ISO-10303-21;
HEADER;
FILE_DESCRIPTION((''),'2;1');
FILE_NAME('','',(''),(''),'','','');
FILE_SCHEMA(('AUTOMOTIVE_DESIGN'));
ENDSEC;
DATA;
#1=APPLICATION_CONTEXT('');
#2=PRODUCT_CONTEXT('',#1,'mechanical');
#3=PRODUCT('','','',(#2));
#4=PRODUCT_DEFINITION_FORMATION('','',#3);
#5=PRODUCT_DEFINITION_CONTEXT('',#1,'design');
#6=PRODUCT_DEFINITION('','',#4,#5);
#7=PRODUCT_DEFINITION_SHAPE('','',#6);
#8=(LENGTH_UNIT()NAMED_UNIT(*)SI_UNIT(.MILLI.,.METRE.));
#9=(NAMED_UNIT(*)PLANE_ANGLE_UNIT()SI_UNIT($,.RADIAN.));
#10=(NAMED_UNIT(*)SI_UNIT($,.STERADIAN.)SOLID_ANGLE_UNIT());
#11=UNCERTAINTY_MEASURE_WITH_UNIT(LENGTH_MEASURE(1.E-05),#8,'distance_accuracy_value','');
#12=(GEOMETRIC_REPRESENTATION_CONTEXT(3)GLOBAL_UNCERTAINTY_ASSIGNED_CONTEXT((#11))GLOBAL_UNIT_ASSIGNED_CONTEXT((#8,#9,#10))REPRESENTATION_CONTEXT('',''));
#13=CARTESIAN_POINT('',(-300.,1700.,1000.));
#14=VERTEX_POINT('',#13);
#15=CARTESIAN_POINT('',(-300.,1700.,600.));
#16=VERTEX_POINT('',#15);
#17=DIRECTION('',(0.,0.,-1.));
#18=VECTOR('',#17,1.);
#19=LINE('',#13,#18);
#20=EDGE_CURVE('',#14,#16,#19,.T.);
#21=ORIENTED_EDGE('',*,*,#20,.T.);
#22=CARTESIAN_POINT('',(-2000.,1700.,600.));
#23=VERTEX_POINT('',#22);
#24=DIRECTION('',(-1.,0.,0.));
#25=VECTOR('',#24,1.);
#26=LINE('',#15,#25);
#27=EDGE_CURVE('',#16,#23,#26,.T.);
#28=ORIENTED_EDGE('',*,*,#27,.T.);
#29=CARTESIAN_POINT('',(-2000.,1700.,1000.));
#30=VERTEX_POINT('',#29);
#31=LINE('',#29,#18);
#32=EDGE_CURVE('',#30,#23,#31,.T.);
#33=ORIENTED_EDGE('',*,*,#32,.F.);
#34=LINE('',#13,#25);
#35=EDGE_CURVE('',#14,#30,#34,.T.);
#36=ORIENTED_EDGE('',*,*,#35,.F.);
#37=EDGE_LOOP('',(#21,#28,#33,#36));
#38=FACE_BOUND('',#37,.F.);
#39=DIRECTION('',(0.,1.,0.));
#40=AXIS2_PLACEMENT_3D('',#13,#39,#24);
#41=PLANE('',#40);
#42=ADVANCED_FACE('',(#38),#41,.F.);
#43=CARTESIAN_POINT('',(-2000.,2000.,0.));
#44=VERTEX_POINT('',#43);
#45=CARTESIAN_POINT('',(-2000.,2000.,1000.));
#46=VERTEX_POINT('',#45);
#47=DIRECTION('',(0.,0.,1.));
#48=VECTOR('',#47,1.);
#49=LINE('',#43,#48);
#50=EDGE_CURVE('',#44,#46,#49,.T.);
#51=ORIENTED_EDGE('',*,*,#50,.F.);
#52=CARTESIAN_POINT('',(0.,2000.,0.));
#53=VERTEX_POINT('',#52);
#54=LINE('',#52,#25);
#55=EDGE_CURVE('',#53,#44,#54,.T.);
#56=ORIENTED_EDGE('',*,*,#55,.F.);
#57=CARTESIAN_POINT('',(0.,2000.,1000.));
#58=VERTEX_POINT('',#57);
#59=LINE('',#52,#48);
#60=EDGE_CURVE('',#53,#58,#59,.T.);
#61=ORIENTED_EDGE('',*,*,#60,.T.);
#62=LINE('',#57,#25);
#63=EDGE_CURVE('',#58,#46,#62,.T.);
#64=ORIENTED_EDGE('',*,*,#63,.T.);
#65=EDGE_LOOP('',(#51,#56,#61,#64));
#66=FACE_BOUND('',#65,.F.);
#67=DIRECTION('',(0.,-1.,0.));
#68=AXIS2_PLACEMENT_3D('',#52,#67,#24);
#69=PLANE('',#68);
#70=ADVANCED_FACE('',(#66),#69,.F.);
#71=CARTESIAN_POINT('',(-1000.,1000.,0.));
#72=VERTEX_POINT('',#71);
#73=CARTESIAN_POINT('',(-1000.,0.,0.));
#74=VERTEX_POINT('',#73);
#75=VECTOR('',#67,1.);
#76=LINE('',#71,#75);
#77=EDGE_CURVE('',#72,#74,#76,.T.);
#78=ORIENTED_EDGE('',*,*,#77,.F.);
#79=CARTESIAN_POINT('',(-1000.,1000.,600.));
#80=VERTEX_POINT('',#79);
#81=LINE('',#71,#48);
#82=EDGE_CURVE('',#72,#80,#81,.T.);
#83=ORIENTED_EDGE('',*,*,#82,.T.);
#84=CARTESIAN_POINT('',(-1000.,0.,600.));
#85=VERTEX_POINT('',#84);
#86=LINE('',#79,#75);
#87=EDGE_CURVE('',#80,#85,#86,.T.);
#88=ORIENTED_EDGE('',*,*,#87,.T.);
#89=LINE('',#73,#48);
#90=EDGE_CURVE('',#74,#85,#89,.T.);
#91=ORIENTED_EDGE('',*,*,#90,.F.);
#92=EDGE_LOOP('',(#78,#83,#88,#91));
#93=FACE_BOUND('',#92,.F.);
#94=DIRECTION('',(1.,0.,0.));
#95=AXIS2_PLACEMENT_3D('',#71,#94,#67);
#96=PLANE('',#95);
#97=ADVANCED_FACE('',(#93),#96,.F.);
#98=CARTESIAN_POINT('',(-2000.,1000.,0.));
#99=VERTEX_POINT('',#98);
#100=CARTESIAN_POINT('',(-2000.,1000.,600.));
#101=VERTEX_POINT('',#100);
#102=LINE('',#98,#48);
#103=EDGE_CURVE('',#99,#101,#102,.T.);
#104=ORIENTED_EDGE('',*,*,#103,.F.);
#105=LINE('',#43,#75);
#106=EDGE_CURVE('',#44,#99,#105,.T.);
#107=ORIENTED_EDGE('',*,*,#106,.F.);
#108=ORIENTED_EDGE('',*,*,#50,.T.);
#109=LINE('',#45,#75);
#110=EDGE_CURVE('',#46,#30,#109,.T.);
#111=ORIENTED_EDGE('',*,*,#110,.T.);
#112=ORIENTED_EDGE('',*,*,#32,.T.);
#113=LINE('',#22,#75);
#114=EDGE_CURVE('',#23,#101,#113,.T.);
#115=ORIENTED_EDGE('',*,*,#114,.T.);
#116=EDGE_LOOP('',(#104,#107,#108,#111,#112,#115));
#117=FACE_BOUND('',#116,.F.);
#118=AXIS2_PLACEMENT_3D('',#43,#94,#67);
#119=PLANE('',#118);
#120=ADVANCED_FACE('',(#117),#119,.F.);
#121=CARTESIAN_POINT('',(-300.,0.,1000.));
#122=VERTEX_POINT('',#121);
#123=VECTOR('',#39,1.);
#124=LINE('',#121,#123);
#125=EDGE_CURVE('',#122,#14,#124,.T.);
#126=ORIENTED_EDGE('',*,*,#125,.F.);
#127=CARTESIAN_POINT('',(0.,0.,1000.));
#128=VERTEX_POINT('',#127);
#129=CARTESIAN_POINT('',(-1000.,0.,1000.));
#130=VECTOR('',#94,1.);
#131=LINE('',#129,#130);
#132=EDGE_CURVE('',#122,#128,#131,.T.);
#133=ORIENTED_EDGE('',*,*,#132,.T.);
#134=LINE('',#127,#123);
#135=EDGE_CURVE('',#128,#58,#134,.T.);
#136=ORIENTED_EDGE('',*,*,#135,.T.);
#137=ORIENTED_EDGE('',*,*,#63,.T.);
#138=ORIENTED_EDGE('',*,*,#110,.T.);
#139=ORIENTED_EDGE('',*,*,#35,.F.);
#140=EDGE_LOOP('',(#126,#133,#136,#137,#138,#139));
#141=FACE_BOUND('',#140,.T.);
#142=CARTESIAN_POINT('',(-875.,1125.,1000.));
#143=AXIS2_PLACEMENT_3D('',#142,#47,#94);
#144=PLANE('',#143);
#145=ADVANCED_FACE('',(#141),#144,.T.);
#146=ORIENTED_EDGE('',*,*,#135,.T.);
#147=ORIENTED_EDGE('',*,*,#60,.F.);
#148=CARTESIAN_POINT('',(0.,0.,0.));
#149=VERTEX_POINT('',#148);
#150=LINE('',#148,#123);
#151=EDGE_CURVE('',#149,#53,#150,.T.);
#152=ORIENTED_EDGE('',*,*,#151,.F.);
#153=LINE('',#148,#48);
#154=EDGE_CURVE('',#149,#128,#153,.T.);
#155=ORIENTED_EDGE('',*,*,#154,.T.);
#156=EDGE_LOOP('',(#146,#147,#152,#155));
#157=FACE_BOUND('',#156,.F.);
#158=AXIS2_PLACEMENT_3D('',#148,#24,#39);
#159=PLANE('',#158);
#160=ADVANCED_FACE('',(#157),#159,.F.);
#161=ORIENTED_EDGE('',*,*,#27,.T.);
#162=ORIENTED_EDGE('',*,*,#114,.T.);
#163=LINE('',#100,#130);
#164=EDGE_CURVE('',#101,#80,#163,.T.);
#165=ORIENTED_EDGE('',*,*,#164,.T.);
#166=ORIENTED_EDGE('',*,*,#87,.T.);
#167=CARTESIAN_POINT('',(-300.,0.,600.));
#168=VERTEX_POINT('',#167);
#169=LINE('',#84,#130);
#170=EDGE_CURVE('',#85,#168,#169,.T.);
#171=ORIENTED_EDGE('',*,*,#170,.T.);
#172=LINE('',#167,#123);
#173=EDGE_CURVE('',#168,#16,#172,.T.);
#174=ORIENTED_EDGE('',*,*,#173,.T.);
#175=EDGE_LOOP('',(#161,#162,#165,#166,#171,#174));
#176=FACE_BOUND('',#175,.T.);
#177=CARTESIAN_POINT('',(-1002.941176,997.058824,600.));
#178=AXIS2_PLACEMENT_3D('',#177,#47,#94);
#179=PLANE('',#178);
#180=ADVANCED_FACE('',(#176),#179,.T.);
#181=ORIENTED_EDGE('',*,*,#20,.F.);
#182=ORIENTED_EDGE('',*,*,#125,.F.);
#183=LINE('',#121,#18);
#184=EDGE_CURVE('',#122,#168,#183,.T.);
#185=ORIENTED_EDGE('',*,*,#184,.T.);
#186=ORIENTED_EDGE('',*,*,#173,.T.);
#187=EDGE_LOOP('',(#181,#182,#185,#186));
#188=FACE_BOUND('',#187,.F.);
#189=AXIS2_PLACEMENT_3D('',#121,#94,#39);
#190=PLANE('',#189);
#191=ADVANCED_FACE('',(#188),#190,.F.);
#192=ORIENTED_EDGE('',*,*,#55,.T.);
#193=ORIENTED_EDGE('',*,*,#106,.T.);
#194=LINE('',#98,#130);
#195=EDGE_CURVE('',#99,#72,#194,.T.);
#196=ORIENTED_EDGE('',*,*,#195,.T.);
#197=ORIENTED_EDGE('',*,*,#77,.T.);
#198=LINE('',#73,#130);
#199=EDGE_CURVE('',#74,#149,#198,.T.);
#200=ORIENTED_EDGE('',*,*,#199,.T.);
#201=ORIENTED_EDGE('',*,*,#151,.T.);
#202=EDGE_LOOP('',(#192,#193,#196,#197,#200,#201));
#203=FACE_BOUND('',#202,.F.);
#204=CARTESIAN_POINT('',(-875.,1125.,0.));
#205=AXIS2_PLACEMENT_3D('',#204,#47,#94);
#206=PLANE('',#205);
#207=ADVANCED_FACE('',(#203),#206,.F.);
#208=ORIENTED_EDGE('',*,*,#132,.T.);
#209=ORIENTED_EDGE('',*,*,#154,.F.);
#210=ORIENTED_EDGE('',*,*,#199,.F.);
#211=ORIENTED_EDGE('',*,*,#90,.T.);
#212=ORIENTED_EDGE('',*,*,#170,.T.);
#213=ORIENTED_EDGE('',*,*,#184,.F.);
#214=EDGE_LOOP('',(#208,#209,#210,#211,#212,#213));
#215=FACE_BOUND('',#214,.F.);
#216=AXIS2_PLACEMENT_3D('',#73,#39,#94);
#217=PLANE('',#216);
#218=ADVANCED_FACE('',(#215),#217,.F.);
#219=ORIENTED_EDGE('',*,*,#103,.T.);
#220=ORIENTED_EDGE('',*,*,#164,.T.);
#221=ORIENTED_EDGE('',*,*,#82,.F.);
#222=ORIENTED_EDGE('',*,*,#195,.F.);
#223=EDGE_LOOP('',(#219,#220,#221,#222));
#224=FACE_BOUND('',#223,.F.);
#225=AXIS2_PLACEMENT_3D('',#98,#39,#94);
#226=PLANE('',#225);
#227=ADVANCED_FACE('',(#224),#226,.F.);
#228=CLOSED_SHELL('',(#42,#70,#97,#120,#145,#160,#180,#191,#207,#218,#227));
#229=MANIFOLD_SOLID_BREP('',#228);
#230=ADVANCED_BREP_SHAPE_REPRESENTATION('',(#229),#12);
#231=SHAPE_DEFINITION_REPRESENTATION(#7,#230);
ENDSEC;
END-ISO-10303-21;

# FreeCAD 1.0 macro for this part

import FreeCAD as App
import Part
import Sketcher

V = App.Vector
Q = App.Units.Quantity

doc = App.newDocument("Part")
body = doc.addObject("PartDesign::Body", "Body")

# Sketch on XY plane
sketch1 = doc.addObject("Sketcher::SketchObject", "Sketch")
body.addObject(sketch1)
sketch1.AttachmentSupport = (doc.XY_Plane, [""])
sketch1.MapMode = "FlatFace"
sketch1.addGeometry([
    Part.LineSegment(V(-1000, 0, 0), V(0, 0, 0)),  # 0
    Part.LineSegment(V(0, 0, 0), V(0, 2000, 0)),  # 1
    Part.LineSegment(V(0, 2000, 0), V(-2000, 2000, 0)),  # 2
    Part.LineSegment(V(-2000, 2000, 0), V(-2000, 1000, 0)),  # 3
    Part.LineSegment(V(-2000, 1000, 0), V(-1000, 1000, 0)),  # 4
    Part.LineSegment(V(-1000, 1000, 0), V(-1000, 0, 0)),  # 5
], False)
sketch1.addConstraint([
    Sketcher.Constraint("Coincident", 0, 2, 1, 1),
    Sketcher.Constraint("Coincident", 1, 2, 2, 1),
    Sketcher.Constraint("Coincident", 2, 2, 3, 1),
    Sketcher.Constraint("Coincident", 3, 2, 4, 1),
    Sketcher.Constraint("Coincident", 4, 2, 5, 1),
    Sketcher.Constraint("Coincident", 5, 2, 0, 1),
    Sketcher.Constraint("Horizontal", 0),
    Sketcher.Constraint("Vertical", 1),
    Sketcher.Constraint("Horizontal", 2),
    Sketcher.Constraint("Vertical", 3),
    Sketcher.Constraint("Horizontal", 4),
    Sketcher.Constraint("Vertical", 5),
    Sketcher.Constraint("Coincident", 0, 2, -1, 1),
    Sketcher.Constraint("Equal", 0, 4),
    Sketcher.Constraint("Equal", 2, 1),
    Sketcher.Constraint("Equal", 4, 3),
    Sketcher.Constraint("DistanceX", 0, 1, 0, 2, Q("1000 mm")),
])
pad1 = doc.addObject("PartDesign::Pad", "Pad")
body.addObject(pad1)
pad1.Profile = sketch1
pad1.Length = 1000

# Sketch on XY plane
sketch2 = doc.addObject("Sketcher::SketchObject", "Sketch001")
body.addObject(sketch2)
sketch2.AttachmentSupport = (doc.XY_Plane, [""])
sketch2.MapMode = "FlatFace"
sketch2.AttachmentOffset = App.Placement(V(0, 0, 1000), App.Rotation())
sketch2.addGeometry([
    Part.LineSegment(V(-2000, 1700, 0), V(-2000, 1000, 0)),  # 0
    Part.LineSegment(V(-2000, 1000, 0), V(-1000, 1000, 0)),  # 1
    Part.LineSegment(V(-1000, 1000, 0), V(-1000, 0, 0)),  # 2
    Part.LineSegment(V(-1000, 0, 0), V(-300, 0, 0)),  # 3
    Part.LineSegment(V(-300, 0, 0), V(-300, 1700, 0)),  # 4
    Part.LineSegment(V(-300, 1700, 0), V(-2000, 1700, 0)),  # 5
], False)
sketch2.addConstraint([
    Sketcher.Constraint("Coincident", 0, 2, 1, 1),
    Sketcher.Constraint("Coincident", 1, 2, 2, 1),
    Sketcher.Constraint("Coincident", 2, 2, 3, 1),
    Sketcher.Constraint("Coincident", 3, 2, 4, 1),
    Sketcher.Constraint("Coincident", 4, 2, 5, 1),
    Sketcher.Constraint("Coincident", 5, 2, 0, 1),
    Sketcher.Constraint("Vertical", 0),
    Sketcher.Constraint("Horizontal", 1),
    Sketcher.Constraint("Vertical", 2),
    Sketcher.Constraint("Horizontal", 3),
    Sketcher.Constraint("Vertical", 4),
    Sketcher.Constraint("Horizontal", 5),
    Sketcher.Constraint("PointOnObject", 2, 2, -1),
    Sketcher.Constraint("Equal", 3, 0),
    Sketcher.Constraint("Equal", 1, 2),
    Sketcher.Constraint("DistanceX", 1, 1, 1, 2, Q("1000 mm")),
    Sketcher.Constraint("DistanceX", 3, 1, 3, 2, Q("700 mm")),
    Sketcher.Constraint("DistanceX", 0, 2, -1, 1, Q("2000 mm")),
])
pocket1 = doc.addObject("PartDesign::Pocket", "Pocket")
body.addObject(pocket1)
pocket1.Profile = sketch2
pocket1.Length = 400

doc.recompute()
